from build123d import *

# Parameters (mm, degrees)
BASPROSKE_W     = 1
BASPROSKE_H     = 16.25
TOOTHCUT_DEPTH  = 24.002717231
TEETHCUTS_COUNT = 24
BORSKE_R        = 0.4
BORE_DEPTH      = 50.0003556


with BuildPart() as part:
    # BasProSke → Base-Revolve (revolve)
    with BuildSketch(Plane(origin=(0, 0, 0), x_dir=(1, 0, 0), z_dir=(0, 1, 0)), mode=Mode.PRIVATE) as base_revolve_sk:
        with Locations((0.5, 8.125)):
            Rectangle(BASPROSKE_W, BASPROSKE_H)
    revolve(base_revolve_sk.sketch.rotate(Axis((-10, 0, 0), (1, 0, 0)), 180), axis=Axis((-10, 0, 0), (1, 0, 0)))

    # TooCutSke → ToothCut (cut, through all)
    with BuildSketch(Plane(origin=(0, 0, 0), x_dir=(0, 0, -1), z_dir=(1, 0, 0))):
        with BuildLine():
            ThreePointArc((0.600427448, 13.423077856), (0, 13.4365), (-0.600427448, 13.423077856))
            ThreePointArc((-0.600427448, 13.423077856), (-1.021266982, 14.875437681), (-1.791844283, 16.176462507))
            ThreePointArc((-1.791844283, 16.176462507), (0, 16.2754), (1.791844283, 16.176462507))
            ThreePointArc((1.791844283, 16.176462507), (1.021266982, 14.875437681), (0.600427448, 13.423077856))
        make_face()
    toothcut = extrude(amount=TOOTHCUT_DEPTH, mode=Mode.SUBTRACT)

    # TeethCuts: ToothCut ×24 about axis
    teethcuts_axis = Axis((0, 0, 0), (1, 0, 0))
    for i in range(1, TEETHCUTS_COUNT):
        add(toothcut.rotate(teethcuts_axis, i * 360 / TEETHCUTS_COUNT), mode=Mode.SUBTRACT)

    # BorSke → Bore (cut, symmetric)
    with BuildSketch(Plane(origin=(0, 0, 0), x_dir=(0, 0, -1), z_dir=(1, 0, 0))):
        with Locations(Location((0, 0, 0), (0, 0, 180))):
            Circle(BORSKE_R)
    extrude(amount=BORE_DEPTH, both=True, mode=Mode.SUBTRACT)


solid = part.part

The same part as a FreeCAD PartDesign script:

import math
import FreeCAD as App
import Part
import Sketcher
from FreeCAD import Vector
Q = App.Units.Quantity


def add_polygon(sketch, points):
    """Adds a closed chain of lines whose ends are joined by coincident constraints."""
    first, n = sketch.GeometryCount, len(points)
    for a, b in zip(points, points[1:] + points[:1]):
        sketch.addGeometry(Part.LineSegment(App.Vector(*a, 0), App.Vector(*b, 0)), False)
    for i in range(n):
        sketch.addConstraint(Sketcher.Constraint("Coincident", first + i, 2, first + (i + 1) % n, 1))

doc = App.newDocument("Part")
body = doc.addObject("PartDesign::Body", "Body")

sketch1 = body.newObject("Sketcher::SketchObject", "Sketch")
sketch1.AttachmentSupport = (doc.getObject("XZ_Plane"), [""])
sketch1.MapMode = "FlatFace"
add_polygon(sketch1, [(0, -16.25), (0, 0), (1, 0), (1, -16.25)])
sketch1.addConstraint([
    Sketcher.Constraint("Vertical", 0),
    Sketcher.Constraint("Horizontal", 1),
    Sketcher.Constraint("Vertical", 2),
    Sketcher.Constraint("Horizontal", 3),
    Sketcher.Constraint("Coincident", 0, 2, -1, 1),
    Sketcher.Constraint("DistanceX", 1, 1, 1, 2, Q("1 mm")),
    Sketcher.Constraint("DistanceY", 0, 1, 0, 2, Q("16.25 mm")),
])
revolution = body.newObject("PartDesign::Revolution", "Revolution")
revolution.Profile = sketch1
revolution.ReferenceAxis = (sketch1, ["H_Axis"])
revolution.Angle = 360

sketch2 = body.newObject("Sketcher::SketchObject", "Sketch001")
sketch2.AttachmentSupport = (doc.getObject("YZ_Plane"), [""])
sketch2.MapMode = "FlatFace"
sketch2.addGeometry([
    Part.ArcOfCircle(Part.Circle(Vector(0, 0, 0), Vector(0, 0, 1), 13.4365), math.radians(-2.561189), math.radians(2.561189)),
    Part.ArcOfCircle(Part.Circle(Vector(12.492684, -6.527852, 0), Vector(0, 0, 1), 6), math.radians(52.12338), math.radians(81.079393)),
    Part.ArcOfCircle(Part.Circle(Vector(0, 0, 0), Vector(0, 0, 1), 16.2754), math.radians(-6.320806), math.radians(6.320806)),
    Part.ArcOfCircle(Part.Circle(Vector(12.492684, 6.527852, 0), Vector(0, 0, 1), 6), math.radians(-81.079393), math.radians(-52.12338)),
], False)
sketch2.addConstraint([
    Sketcher.Constraint("Coincident", 0, 1, 1, 2),
    Sketcher.Constraint("Coincident", 1, 1, 2, 1),
    Sketcher.Constraint("Coincident", 2, 2, 3, 2),
    Sketcher.Constraint("Coincident", 3, 1, 0, 2),
    Sketcher.Constraint("Coincident", 0, 3, -1, 1),
    Sketcher.Constraint("Coincident", 2, 3, -1, 1),
    Sketcher.Constraint("Equal", 1, 3),
    Sketcher.Constraint("Symmetric", 1, 3, 3, 3, -1),
    Sketcher.Constraint("Radius", 1, Q("6 mm")),
    Sketcher.Constraint("Radius", 0, Q("13.4365 mm")),
    Sketcher.Constraint("Radius", 2, Q("16.2754 mm")),
    Sketcher.Constraint("DistanceY", 0, 1, 3, 3, Q("7.12828 mm")),
    Sketcher.Constraint("DistanceX", 1, 3, 1, 1, Q("3.683779 mm")),
])
pocket1 = body.newObject("PartDesign::Pocket", "Pocket")
pocket1.Profile = sketch2
pocket1.Type = "ThroughAll"
pocket1.Reversed = True
doc.recompute()

polarpattern = body.newObject("PartDesign::PolarPattern", "PolarPattern")
polarpattern.Originals = [pocket1]
polarpattern.Axis = (doc.getObject("X_Axis"), [""])
polarpattern.Angle = 360
polarpattern.Occurrences = 24
body.Tip = polarpattern

sketch3 = body.newObject("Sketcher::SketchObject", "Sketch002")
sketch3.AttachmentSupport = (doc.getObject("YZ_Plane"), [""])
sketch3.MapMode = "FlatFace"
sketch3.addGeometry(Part.Circle(Vector(0, 0, 0), Vector(0, 0, 1), 0.4), False)
sketch3.addConstraint([
    Sketcher.Constraint("Coincident", 0, 3, -1, 1),
    Sketcher.Constraint("Diameter", 0, Q("0.8 mm")),
])
pocket2 = body.newObject("PartDesign::Pocket", "Pocket001")
pocket2.Profile = sketch3
pocket2.Length = 100.000711
pocket2.Midplane = True

doc.recompute()
